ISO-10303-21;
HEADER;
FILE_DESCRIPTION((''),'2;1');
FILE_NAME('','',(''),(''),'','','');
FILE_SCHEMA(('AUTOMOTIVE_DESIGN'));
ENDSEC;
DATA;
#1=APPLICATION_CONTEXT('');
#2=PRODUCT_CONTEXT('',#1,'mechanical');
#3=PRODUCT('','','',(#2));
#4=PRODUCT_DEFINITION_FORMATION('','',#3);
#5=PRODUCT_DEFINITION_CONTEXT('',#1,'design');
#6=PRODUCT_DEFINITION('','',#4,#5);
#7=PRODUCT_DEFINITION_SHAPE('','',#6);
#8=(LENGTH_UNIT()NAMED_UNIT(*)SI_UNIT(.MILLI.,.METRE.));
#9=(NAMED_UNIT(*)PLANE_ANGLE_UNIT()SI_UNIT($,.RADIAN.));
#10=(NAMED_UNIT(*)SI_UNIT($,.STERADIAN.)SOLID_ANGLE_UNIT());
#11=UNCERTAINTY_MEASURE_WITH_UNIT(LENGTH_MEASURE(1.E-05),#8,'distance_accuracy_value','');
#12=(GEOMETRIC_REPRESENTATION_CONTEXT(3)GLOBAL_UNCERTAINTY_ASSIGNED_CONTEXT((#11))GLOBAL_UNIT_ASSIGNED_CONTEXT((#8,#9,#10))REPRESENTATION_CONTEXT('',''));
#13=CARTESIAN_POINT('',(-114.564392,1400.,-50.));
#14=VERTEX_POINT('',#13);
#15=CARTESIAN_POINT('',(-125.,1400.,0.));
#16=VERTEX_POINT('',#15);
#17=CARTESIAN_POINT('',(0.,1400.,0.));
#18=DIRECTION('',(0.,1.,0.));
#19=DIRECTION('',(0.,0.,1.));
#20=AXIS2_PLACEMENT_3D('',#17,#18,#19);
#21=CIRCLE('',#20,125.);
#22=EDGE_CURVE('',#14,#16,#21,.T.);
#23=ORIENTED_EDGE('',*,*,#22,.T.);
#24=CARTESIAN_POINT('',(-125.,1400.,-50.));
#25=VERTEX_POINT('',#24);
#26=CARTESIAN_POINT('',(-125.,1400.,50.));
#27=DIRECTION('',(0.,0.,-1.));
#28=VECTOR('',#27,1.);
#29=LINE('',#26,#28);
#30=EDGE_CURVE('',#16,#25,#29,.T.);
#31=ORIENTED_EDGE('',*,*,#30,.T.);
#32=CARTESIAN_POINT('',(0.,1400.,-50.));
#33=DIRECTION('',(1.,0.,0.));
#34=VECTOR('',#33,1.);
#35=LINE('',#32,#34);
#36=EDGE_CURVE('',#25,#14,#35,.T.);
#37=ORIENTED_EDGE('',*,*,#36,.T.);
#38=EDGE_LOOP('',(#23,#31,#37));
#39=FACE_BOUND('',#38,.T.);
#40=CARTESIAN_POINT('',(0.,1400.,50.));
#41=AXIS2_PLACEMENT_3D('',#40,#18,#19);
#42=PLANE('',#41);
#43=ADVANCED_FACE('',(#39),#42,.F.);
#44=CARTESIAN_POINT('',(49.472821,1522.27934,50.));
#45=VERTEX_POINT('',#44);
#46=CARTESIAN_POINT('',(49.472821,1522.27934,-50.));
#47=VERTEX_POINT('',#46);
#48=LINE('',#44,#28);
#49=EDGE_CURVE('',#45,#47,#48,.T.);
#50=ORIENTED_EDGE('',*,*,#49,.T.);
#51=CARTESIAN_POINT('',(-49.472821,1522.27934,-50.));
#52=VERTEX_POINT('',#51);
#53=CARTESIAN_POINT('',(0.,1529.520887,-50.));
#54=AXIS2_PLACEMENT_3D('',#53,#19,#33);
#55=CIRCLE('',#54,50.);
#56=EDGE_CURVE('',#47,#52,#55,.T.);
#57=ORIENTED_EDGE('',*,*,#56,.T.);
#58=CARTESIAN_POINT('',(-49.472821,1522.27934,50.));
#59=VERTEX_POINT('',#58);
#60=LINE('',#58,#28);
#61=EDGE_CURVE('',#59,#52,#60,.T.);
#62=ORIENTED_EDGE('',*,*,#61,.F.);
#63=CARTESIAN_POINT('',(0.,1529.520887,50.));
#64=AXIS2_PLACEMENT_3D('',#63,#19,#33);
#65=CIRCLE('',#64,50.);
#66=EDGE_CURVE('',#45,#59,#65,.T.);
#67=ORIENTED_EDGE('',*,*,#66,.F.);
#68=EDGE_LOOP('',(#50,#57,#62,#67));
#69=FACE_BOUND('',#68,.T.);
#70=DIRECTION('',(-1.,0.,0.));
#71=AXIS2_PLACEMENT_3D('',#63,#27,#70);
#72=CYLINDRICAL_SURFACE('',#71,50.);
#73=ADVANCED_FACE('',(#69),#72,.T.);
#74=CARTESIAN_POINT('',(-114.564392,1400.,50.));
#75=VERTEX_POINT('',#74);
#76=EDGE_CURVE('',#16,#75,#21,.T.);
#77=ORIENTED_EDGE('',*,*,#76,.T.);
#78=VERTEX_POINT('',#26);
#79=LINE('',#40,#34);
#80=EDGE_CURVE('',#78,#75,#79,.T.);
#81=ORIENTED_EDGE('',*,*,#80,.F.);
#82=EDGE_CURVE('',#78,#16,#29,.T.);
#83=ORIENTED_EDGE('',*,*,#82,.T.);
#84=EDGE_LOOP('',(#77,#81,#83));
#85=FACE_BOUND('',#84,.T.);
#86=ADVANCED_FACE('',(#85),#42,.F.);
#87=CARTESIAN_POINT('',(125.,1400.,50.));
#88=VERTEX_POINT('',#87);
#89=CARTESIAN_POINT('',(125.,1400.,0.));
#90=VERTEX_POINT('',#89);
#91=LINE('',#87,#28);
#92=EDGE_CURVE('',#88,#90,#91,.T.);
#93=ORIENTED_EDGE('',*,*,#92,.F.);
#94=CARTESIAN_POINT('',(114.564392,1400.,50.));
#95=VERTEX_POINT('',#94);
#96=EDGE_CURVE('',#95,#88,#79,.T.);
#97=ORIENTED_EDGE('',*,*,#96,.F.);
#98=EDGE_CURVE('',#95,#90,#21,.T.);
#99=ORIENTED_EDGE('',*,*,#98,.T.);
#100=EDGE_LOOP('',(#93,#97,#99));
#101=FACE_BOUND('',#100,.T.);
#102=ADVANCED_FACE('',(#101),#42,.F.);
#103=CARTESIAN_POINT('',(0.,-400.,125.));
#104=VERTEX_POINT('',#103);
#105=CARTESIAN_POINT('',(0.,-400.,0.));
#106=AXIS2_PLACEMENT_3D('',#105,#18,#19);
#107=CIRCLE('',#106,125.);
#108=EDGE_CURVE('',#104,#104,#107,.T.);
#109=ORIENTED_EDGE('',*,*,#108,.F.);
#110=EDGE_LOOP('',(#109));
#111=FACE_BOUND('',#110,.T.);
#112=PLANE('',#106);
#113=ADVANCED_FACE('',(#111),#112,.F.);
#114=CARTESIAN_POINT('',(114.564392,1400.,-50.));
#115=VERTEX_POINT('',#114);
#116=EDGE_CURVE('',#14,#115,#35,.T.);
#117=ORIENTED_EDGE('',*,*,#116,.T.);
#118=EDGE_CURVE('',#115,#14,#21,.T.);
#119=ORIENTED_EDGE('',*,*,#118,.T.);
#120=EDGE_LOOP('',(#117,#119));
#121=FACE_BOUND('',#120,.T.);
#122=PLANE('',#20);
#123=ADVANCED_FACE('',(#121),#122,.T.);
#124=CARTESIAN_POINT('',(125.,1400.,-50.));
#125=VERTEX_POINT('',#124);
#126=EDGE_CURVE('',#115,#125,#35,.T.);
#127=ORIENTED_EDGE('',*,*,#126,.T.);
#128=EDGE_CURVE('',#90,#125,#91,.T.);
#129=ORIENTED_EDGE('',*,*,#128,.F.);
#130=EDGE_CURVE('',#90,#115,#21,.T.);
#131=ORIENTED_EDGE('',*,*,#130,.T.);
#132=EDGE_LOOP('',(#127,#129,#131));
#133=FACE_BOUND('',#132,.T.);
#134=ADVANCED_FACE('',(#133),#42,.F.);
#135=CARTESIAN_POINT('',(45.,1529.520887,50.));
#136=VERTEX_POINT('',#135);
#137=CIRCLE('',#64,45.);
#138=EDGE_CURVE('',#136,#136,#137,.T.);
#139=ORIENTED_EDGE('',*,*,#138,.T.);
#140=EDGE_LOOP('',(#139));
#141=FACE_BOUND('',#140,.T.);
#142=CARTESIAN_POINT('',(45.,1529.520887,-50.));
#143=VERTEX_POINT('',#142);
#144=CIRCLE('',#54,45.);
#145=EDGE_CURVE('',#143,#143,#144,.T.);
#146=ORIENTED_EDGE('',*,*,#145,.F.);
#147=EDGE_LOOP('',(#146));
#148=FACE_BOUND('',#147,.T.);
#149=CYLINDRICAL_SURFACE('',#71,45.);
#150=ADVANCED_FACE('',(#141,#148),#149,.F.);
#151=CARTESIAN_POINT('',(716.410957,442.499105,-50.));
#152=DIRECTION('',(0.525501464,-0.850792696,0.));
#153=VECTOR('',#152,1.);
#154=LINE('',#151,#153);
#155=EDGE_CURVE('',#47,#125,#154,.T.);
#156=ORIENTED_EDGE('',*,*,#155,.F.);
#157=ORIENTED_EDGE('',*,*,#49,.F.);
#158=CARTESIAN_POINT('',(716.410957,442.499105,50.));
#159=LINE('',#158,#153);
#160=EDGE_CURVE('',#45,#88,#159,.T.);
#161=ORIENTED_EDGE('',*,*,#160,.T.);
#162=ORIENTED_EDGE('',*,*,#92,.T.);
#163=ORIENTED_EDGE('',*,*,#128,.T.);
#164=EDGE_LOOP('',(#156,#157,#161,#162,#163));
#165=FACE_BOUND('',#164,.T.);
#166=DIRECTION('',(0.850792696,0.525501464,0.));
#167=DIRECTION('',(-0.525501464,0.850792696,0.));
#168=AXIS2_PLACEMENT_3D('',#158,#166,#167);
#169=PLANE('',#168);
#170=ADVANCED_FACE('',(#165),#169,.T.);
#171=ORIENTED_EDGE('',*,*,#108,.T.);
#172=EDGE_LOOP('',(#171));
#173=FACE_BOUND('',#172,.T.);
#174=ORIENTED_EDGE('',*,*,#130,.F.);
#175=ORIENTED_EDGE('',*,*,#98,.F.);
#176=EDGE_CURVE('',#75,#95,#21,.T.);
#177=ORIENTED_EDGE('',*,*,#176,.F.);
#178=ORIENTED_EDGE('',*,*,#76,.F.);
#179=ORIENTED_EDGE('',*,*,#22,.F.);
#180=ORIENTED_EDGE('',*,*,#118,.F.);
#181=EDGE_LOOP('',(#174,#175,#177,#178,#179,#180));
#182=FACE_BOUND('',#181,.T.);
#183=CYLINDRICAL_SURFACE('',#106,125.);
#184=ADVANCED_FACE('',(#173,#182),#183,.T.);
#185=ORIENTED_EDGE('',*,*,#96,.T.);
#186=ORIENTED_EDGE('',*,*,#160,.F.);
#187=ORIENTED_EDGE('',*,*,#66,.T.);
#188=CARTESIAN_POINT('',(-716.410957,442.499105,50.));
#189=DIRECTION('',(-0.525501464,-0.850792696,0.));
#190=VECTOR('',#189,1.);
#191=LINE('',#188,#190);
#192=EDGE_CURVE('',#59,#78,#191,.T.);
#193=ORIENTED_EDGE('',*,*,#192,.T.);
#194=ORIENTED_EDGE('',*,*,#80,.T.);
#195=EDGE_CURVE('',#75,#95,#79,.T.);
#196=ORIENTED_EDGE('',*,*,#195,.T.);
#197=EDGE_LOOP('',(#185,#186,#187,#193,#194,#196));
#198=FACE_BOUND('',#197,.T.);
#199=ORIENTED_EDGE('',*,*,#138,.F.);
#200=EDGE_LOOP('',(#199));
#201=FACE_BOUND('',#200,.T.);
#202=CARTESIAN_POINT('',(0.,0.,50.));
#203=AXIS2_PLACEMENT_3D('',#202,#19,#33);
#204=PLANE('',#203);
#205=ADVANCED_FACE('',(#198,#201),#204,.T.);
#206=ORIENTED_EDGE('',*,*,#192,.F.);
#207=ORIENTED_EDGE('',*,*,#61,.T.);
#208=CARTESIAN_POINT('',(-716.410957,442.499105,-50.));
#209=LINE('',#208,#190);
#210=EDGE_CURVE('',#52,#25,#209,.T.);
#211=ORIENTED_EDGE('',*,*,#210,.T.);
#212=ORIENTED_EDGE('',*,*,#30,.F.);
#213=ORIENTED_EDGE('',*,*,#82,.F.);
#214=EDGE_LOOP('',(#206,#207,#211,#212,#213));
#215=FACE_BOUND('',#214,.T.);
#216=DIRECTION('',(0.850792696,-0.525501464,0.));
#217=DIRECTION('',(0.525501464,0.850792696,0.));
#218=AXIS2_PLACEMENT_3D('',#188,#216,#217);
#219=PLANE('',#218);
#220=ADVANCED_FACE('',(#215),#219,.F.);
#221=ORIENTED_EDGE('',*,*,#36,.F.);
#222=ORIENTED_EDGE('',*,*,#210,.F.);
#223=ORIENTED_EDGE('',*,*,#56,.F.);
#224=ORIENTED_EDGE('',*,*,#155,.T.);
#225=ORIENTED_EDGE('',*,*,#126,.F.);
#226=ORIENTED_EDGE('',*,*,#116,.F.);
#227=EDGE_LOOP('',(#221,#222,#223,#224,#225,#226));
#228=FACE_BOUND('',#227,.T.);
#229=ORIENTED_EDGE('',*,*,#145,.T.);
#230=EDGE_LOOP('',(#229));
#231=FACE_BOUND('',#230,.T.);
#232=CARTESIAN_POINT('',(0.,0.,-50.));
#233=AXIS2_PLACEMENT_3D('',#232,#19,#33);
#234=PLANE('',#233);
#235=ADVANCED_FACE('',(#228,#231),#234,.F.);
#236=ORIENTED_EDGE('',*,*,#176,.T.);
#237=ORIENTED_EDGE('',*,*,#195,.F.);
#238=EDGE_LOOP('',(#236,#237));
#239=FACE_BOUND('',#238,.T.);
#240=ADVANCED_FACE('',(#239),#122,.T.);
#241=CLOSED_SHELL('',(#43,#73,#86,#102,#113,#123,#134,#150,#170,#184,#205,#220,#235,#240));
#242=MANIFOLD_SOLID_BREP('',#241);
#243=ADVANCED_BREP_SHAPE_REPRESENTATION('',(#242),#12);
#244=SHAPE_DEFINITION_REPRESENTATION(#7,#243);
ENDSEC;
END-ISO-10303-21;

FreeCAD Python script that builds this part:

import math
import FreeCAD as App
import Part
import Sketcher

doc = App.newDocument("Part")
params = doc.addObject("Spreadsheet::Sheet", "Params")
for row, (alias, value) in enumerate([
    ("sketch1_diameter", "250 mm"),
    ("pad1_length", "1400 mm"),
    ("pad1_length2", "400 mm"),
    ("sketch2_diameter", "90 mm"),
    ("sketch2_radius", "50 mm"),
    ("sketch2_width", "250 mm"),
    ("pad2_length", "100 mm"),
], start=1):
    params.set(f"A{row}", alias)
    params.set(f"B{row}", "=" + value)
    params.setAlias(f"B{row}", alias)

body = doc.addObject("PartDesign::Body", "Body")

# Sketch on XZ plane
sketch1 = doc.addObject("Sketcher::SketchObject", "Sketch")
body.addObject(sketch1)
sketch1.AttachmentSupport = (doc.XZ_Plane, [""])
sketch1.MapMode = "FlatFace"
sketch1.addGeometry(Part.Circle(App.Vector(0, 0, 0), App.Vector(0, 0, 1), 125), False)
sketch1.addConstraint(Sketcher.Constraint("Coincident", 0, 3, -1, 1))
sketch1.addConstraint(Sketcher.Constraint("Diameter", 0, 250.0))
sketch1.setExpression("Constraints[1]", "Params.sketch1_diameter")
pad1 = doc.addObject("PartDesign::Pad", "Pad")
body.addObject(pad1)
pad1.Profile = sketch1
pad1.Type = "TwoLengths"
pad1.setExpression("Length", "Params.pad1_length")
pad1.setExpression("Length2", "Params.pad1_length2")
pad1.Reversed = True

# Sketch on XY plane
sketch2 = doc.addObject("Sketcher::SketchObject", "Sketch001")
body.addObject(sketch2)
sketch2.AttachmentSupport = (doc.XY_Plane, [""])
sketch2.MapMode = "FlatFace"
sketch2.addGeometry(Part.LineSegment(App.Vector(-125, 1400, 0), App.Vector(125, 1400, 0)), False)
sketch2.addGeometry(Part.LineSegment(App.Vector(125, 1400, 0), App.Vector(49, 1522, 0)), False)
sketch2.addGeometry(Part.ArcOfCircle(Part.Circle(App.Vector(0, 1530, 0), App.Vector(0, 0, 1), 50), math.radians(-8.33), math.radians(0)), False)
sketch2.addGeometry(Part.ArcOfCircle(Part.Circle(App.Vector(0, 1530, 0), App.Vector(0, 0, 1), 50), math.radians(0), math.radians(188)), False)
sketch2.addGeometry(Part.LineSegment(App.Vector(-49, 1522, 0), App.Vector(-125, 1400, 0)), False)
sketch2.addGeometry(Part.Circle(App.Vector(0, 1530, 0), App.Vector(0, 0, 1), 45), False)
sketch2.addConstraint(Sketcher.Constraint("Coincident", 0, 2, 1, 1))
sketch2.addConstraint(Sketcher.Constraint("Coincident", 1, 2, 2, 1))
sketch2.addConstraint(Sketcher.Constraint("Tangent", 2, 2, 3, 1))
sketch2.addConstraint(Sketcher.Constraint("Coincident", 3, 2, 4, 1))
sketch2.addConstraint(Sketcher.Constraint("Coincident", 4, 2, 0, 1))
sketch2.addConstraint(Sketcher.Constraint("Horizontal", 0))
sketch2.addConstraint(Sketcher.Constraint("Coincident", 5, 3, 2, 3))
sketch2.addConstraint(Sketcher.Constraint("Equal", 2, 3))
sketch2.addConstraint(Sketcher.Constraint("Symmetric", 1, 2, 3, 2, -2))
sketch2.addConstraint(Sketcher.Constraint("Horizontal", 5, 3, 2, 2))
sketch2.addConstraint(Sketcher.Constraint("Equal", 1, 4))
sketch2.addConstraint(Sketcher.Constraint("Diameter", 5, 90.0))
sketch2.addConstraint(Sketcher.Constraint("Radius", 2, 50.0))
sketch2.addConstraint(Sketcher.Constraint("DistanceX", 0, 1, 0, 2, 250.0))
sketch2.addConstraint(Sketcher.Constraint("DistanceY", -1, 1, 0, 2, 1400.0))
sketch2.addConstraint(Sketcher.Constraint("DistanceX", -1, 1, 1, 2, 49.472821))
sketch2.addConstraint(Sketcher.Constraint("DistanceY", -1, 1, 1, 2, 1522.27934))
sketch2.setExpression("Constraints[11]", "Params.sketch2_diameter")
sketch2.setExpression("Constraints[12]", "Params.sketch2_radius")
sketch2.setExpression("Constraints[13]", "Params.sketch2_width")
pad2 = doc.addObject("PartDesign::Pad", "Pad001")
body.addObject(pad2)
pad2.Profile = sketch2
pad2.setExpression("Length", "Params.pad2_length")
pad2.Midplane = True

doc.recompute()
